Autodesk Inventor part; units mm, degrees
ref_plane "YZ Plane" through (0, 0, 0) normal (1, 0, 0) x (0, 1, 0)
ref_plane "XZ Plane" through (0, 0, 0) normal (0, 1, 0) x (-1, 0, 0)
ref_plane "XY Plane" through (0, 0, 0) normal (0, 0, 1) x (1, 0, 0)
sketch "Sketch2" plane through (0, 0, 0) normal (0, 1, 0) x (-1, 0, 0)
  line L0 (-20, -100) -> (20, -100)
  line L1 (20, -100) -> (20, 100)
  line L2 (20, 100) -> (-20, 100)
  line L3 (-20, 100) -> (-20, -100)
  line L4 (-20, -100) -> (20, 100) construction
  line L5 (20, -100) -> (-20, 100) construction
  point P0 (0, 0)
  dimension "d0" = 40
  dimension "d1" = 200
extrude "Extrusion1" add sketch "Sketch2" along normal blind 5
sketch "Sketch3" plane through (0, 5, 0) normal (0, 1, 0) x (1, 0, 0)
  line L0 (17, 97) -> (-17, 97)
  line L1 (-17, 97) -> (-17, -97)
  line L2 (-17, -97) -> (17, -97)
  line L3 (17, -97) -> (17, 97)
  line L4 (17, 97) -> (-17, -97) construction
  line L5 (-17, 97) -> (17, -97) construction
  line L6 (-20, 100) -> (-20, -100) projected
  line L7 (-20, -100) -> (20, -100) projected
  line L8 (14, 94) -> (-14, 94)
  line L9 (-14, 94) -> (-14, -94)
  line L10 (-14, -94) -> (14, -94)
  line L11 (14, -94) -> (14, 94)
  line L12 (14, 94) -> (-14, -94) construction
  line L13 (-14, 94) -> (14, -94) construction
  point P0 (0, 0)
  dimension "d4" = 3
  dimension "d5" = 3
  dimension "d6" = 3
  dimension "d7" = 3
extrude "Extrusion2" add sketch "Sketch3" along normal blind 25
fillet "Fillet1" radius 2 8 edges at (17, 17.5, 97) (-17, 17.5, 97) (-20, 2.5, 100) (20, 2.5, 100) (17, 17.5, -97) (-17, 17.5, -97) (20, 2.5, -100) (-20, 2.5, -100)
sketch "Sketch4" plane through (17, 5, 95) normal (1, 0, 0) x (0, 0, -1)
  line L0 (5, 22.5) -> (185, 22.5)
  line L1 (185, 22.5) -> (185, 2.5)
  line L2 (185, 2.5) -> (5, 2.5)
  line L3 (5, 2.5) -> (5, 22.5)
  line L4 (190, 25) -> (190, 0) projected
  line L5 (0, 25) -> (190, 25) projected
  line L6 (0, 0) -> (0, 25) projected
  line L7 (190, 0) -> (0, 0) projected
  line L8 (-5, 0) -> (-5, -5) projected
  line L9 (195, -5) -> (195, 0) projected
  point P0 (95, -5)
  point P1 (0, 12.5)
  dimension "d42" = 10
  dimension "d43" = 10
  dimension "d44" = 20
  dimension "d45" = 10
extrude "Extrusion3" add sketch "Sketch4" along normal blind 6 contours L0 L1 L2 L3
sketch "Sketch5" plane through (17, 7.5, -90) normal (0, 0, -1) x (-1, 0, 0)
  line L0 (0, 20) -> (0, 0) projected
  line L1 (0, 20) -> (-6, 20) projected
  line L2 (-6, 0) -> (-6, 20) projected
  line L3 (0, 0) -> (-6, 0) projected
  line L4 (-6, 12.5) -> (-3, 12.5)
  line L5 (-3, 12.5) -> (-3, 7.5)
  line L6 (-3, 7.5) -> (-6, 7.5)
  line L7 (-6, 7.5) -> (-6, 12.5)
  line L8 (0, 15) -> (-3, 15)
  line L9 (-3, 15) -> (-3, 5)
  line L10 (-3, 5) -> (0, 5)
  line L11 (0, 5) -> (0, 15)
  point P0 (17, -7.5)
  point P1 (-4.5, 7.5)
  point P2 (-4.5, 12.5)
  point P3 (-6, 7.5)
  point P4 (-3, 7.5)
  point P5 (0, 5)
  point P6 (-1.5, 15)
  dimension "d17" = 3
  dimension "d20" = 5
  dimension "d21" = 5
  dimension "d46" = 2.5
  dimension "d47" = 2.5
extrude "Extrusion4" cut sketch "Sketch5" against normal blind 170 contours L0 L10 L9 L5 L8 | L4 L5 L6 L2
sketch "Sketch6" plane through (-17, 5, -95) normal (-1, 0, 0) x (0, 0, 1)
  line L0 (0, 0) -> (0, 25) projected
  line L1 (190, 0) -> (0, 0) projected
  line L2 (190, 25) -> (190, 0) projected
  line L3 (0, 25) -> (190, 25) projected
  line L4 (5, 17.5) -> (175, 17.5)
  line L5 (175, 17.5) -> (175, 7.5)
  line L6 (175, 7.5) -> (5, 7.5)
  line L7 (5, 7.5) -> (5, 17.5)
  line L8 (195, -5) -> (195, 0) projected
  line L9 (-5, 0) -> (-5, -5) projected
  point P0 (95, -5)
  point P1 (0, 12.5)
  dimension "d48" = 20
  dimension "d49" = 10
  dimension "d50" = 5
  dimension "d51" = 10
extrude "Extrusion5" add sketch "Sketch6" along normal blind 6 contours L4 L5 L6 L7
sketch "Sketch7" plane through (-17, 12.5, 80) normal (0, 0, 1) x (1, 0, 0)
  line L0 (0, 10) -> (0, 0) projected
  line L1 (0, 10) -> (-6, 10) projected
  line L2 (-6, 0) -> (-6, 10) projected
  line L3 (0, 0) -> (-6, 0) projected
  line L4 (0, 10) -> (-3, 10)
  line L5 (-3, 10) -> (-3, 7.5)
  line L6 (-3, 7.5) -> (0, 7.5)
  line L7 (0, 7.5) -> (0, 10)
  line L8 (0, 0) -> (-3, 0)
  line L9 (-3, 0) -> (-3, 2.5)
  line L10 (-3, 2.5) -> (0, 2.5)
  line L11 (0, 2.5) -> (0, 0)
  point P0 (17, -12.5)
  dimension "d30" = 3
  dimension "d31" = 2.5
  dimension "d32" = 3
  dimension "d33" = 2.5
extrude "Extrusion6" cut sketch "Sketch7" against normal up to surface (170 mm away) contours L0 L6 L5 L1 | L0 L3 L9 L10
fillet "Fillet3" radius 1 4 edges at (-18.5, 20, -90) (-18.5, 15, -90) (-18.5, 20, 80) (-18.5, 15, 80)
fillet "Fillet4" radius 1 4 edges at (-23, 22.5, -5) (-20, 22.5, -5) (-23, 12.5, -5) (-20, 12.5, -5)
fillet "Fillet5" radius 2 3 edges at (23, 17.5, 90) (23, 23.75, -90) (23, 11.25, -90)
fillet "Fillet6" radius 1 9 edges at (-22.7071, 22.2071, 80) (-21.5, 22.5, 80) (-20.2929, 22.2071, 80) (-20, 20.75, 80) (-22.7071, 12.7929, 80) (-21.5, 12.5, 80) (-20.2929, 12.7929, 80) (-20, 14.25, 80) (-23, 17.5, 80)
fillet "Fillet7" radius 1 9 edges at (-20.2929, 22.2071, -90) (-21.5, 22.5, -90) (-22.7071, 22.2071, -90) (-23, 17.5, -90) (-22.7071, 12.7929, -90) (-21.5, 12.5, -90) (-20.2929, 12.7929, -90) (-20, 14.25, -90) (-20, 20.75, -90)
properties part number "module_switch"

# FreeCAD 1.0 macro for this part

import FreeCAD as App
import Part
import Sketcher

V = App.Vector


def edges_at(feature, points):
    """Names of the edges that pass closest to the given points."""
    edges = feature.Shape.Edges
    near = lambda p: min(range(len(edges)), key=lambda i: edges[i].distToShape(Part.Vertex(*p))[0])
    return sorted({f"Edge{near(p) + 1}" for p in points})


def add_polygon(sketch, points):
    """Adds a closed chain of lines whose ends are joined by coincident constraints."""
    first, n = sketch.GeometryCount, len(points)
    for a, b in zip(points, points[1:] + points[:1]):
        sketch.addGeometry(Part.LineSegment(App.Vector(*a, 0), App.Vector(*b, 0)), False)
    for i in range(n):
        sketch.addConstraint(Sketcher.Constraint("Coincident", first + i, 2, first + (i + 1) % n, 1))

doc = App.newDocument("Part")
body = doc.addObject("PartDesign::Body", "Body")

# Sketch on XZ plane
sketch1 = body.newObject("Sketcher::SketchObject", "Sketch")
sketch1.AttachmentSupport = (doc.getObject("XZ_Plane"), [""])
sketch1.MapMode = "FlatFace"
add_polygon(sketch1, [(20, 100), (20, -100), (-20, -100), (-20, 100)])  # lines 0-3
sketch1.addConstraint(Sketcher.Constraint("Vertical", 0))
sketch1.addConstraint(Sketcher.Constraint("Horizontal", 1))
sketch1.addConstraint(Sketcher.Constraint("Vertical", 2))
sketch1.addConstraint(Sketcher.Constraint("Horizontal", 3))
sketch1.addConstraint(Sketcher.Constraint("Symmetric", 0, 2, 2, 2, -1, 1))
sketch1.addConstraint(Sketcher.Constraint("DistanceX", 1, 2, 1, 1, 40.0))
sketch1.addConstraint(Sketcher.Constraint("DistanceY", 0, 2, 0, 1, 200.0))
pad1 = body.newObject("PartDesign::Pad", "Pad")
pad1.Profile = sketch1
pad1.Length = 5
pad1.Reversed = True

# Sketch on XZ plane
sketch2 = body.newObject("Sketcher::SketchObject", "Sketch001")
sketch2.AttachmentSupport = (doc.getObject("XZ_Plane"), [""])
sketch2.MapMode = "FlatFace"
sketch2.AttachmentOffset = App.Placement(V(0, 0, -5), App.Rotation())
add_polygon(sketch2, [(17, 97), (17, -97), (-17, -97), (-17, 97)])  # lines 0-3
add_polygon(sketch2, [(-14, -94), (14, -94), (14, 94), (-14, 94)])  # lines 4-7
sketch2.addConstraint(Sketcher.Constraint("Vertical", 0))
sketch2.addConstraint(Sketcher.Constraint("Horizontal", 1))
sketch2.addConstraint(Sketcher.Constraint("Vertical", 2))
sketch2.addConstraint(Sketcher.Constraint("Horizontal", 3))
sketch2.addConstraint(Sketcher.Constraint("Horizontal", 4))
sketch2.addConstraint(Sketcher.Constraint("Vertical", 5))
sketch2.addConstraint(Sketcher.Constraint("Horizontal", 6))
sketch2.addConstraint(Sketcher.Constraint("Vertical", 7))
sketch2.addConstraint(Sketcher.Constraint("Symmetric", 0, 2, 2, 2, -1, 1))
sketch2.addConstraint(Sketcher.Constraint("Symmetric", 4, 2, 6, 2, -1, 1))
sketch2.addConstraint(Sketcher.Constraint("DistanceX", 4, 2, 0, 2, 3.0))
sketch2.addConstraint(Sketcher.Constraint("DistanceY", 0, 2, 4, 2, 3.0))
sketch2.addConstraint(Sketcher.Constraint("DistanceX", 1, 2, 1, 1, 34.0))
sketch2.addConstraint(Sketcher.Constraint("DistanceY", 0, 2, 0, 1, 194.0))
pad2 = body.newObject("PartDesign::Pad", "Pad001")
pad2.Profile = sketch2
pad2.Length = 25
pad2.Reversed = True
doc.recompute()

fillet = body.newObject("PartDesign::Fillet", "Fillet")
fillet.Base = (pad2, edges_at(pad2, [
    (17, 17.5, 97),
    (-17, 17.5, 97),
    (-20, 2.5, 100),
    (20, 2.5, 100),
    (17, 17.5, -97),
    (-17, 17.5, -97),
    (20, 2.5, -100),
    (-20, 2.5, -100),
]))
fillet.Radius = 2

# Sketch on YZ plane
sketch3 = body.newObject("Sketcher::SketchObject", "Sketch002")
sketch3.AttachmentSupport = (doc.getObject("YZ_Plane"), [""])
sketch3.MapMode = "FlatFace"
sketch3.AttachmentOffset = App.Placement(V(0, 0, 17), App.Rotation())
add_polygon(sketch3, [(27.5, -90), (27.5, 90), (7.5, 90), (7.5, -90)])  # lines 0-3
sketch3.addConstraint(Sketcher.Constraint("Vertical", 0))
sketch3.addConstraint(Sketcher.Constraint("Horizontal", 1))
sketch3.addConstraint(Sketcher.Constraint("Vertical", 2))
sketch3.addConstraint(Sketcher.Constraint("Horizontal", 3))
sketch3.addConstraint(Sketcher.Constraint("DistanceX", 1, 2, 1, 1, 20.0))
sketch3.addConstraint(Sketcher.Constraint("DistanceY", 0, 1, 0, 2, 180.0))
sketch3.addConstraint(Sketcher.Constraint("DistanceY", -1, 1, 0, 2, 90.0))
sketch3.addConstraint(Sketcher.Constraint("DistanceX", -1, 1, 0, 2, 27.5))
pad3 = body.newObject("PartDesign::Pad", "Pad002")
pad3.Profile = sketch3
pad3.Length = 6

# Sketch on XY plane
sketch4 = body.newObject("Sketcher::SketchObject", "Sketch003")
sketch4.AttachmentSupport = (doc.getObject("XY_Plane"), [""])
sketch4.MapMode = "FlatFace"
sketch4.AttachmentOffset = App.Placement(V(0, 0, -90), App.Rotation())
add_polygon(sketch4, [(17, 12.5), (17, 22.5), (20, 22.5), (20, 20), (23, 20), (23, 15), (20, 15), (20, 12.5)])  # lines 0-7
sketch4.addConstraint(Sketcher.Constraint("Vertical", 0))
sketch4.addConstraint(Sketcher.Constraint("Horizontal", 1))
sketch4.addConstraint(Sketcher.Constraint("Vertical", 2))
sketch4.addConstraint(Sketcher.Constraint("Horizontal", 3))
sketch4.addConstraint(Sketcher.Constraint("Vertical", 4))
sketch4.addConstraint(Sketcher.Constraint("Horizontal", 5))
sketch4.addConstraint(Sketcher.Constraint("Vertical", 6))
sketch4.addConstraint(Sketcher.Constraint("Horizontal", 7))
sketch4.addConstraint(Sketcher.Constraint("Vertical", 2, 2, 5, 2))
sketch4.addConstraint(Sketcher.Constraint("Equal", 1, 3))
sketch4.addConstraint(Sketcher.Constraint("Equal", 2, 6))
sketch4.addConstraint(Sketcher.Constraint("DistanceX", 1, 1, 1, 2, 3.0))
sketch4.addConstraint(Sketcher.Constraint("DistanceY", 4, 2, 4, 1, 5.0))
sketch4.addConstraint(Sketcher.Constraint("DistanceY", 2, 2, 2, 1, 2.5))
sketch4.addConstraint(Sketcher.Constraint("DistanceX", -1, 1, 0, 2, 17.0))
sketch4.addConstraint(Sketcher.Constraint("DistanceY", -1, 1, 2, 2, 20.0))
pocket1 = body.newObject("PartDesign::Pocket", "Pocket")
pocket1.Profile = sketch4
pocket1.Length = 170
pocket1.Reversed = True

# Sketch on YZ plane
sketch5 = body.newObject("Sketcher::SketchObject", "Sketch004")
sketch5.AttachmentSupport = (doc.getObject("YZ_Plane"), [""])
sketch5.MapMode = "FlatFace"
sketch5.AttachmentOffset = App.Placement(V(0, 0, -17), App.Rotation())
add_polygon(sketch5, [(22.5, 80), (22.5, -90), (12.5, -90), (12.5, 80)])  # lines 0-3
sketch5.addConstraint(Sketcher.Constraint("Vertical", 0))
sketch5.addConstraint(Sketcher.Constraint("Horizontal", 1))
sketch5.addConstraint(Sketcher.Constraint("Vertical", 2))
sketch5.addConstraint(Sketcher.Constraint("Horizontal", 3))
sketch5.addConstraint(Sketcher.Constraint("DistanceX", 1, 2, 1, 1, 10.0))
sketch5.addConstraint(Sketcher.Constraint("DistanceY", 0, 2, 0, 1, 170.0))
sketch5.addConstraint(Sketcher.Constraint("DistanceY", 0, 2, -1, 1, 90.0))
sketch5.addConstraint(Sketcher.Constraint("DistanceX", -1, 1, 0, 2, 22.5))
pad4 = body.newObject("PartDesign::Pad", "Pad003")
pad4.Profile = sketch5
pad4.Length = 6
pad4.Reversed = True

# Sketch on XY plane
sketch6 = body.newObject("Sketcher::SketchObject", "Sketch005")
sketch6.AttachmentSupport = (doc.getObject("XY_Plane"), [""])
sketch6.MapMode = "FlatFace"
sketch6.AttachmentOffset = App.Placement(V(0, 0, 80), App.Rotation())
add_polygon(sketch6, [(-17, 20), (-17, 22.5), (-20, 22.5), (-20, 20)])  # lines 0-3
add_polygon(sketch6, [(-17, 12.5), (-17, 15), (-20, 15), (-20, 12.5)])  # lines 4-7
sketch6.addConstraint(Sketcher.Constraint("Vertical", 0))
sketch6.addConstraint(Sketcher.Constraint("Horizontal", 1))
sketch6.addConstraint(Sketcher.Constraint("Vertical", 2))
sketch6.addConstraint(Sketcher.Constraint("Horizontal", 3))
sketch6.addConstraint(Sketcher.Constraint("Vertical", 4))
sketch6.addConstraint(Sketcher.Constraint("Horizontal", 5))
sketch6.addConstraint(Sketcher.Constraint("Vertical", 6))
sketch6.addConstraint(Sketcher.Constraint("Horizontal", 7))
sketch6.addConstraint(Sketcher.Constraint("Vertical", 3, 2, 4, 2))
sketch6.addConstraint(Sketcher.Constraint("Vertical", 2, 2, 5, 2))
sketch6.addConstraint(Sketcher.Constraint("Equal", 2, 4))
sketch6.addConstraint(Sketcher.Constraint("DistanceX", 1, 2, 1, 1, 3.0))
sketch6.addConstraint(Sketcher.Constraint("DistanceY", 0, 1, 0, 2, 2.5))
sketch6.addConstraint(Sketcher.Constraint("DistanceX", 0, 2, -1, 1, 17.0))
sketch6.addConstraint(Sketcher.Constraint("DistanceY", -1, 1, 2, 2, 20.0))
sketch6.addConstraint(Sketcher.Constraint("DistanceY", -1, 1, 4, 2, 15.0))
pocket2 = body.newObject("PartDesign::Pocket", "Pocket001")
pocket2.Profile = sketch6
pocket2.Length = 170
doc.recompute()

fillet2 = body.newObject("PartDesign::Fillet", "Fillet001")
fillet2.Base = (pocket2, edges_at(pocket2, [
    (-18.5, 20, -90),
    (-18.5, 15, -90),
    (-18.5, 20, 80),
    (-18.5, 15, 80),
]))
fillet2.Radius = 1
doc.recompute()

fillet3 = body.newObject("PartDesign::Fillet", "Fillet002")
fillet3.Base = (fillet2, edges_at(fillet2, [
    (-23, 22.5, -5),
    (-20, 22.5, -5),
    (-23, 12.5, -5),
    (-20, 12.5, -5),
]))
fillet3.Radius = 1
doc.recompute()

fillet4 = body.newObject("PartDesign::Fillet", "Fillet003")
fillet4.Base = (fillet3, edges_at(fillet3, [(23, 17.5, 90), (23, 23.75, -90), (23, 11.25, -90)]))
fillet4.Radius = 2
doc.recompute()

fillet5 = body.newObject("PartDesign::Fillet", "Fillet004")
fillet5.Base = (fillet4, edges_at(fillet4, [
    (-22.707, 22.207, 80),
    (-21.5, 22.5, 80),
    (-20.293, 22.207, 80),
    (-20, 20.75, 80),
    (-22.707, 12.793, 80),
    (-21.5, 12.5, 80),
    (-20.293, 12.793, 80),
    (-20, 14.25, 80),
    (-23, 17.5, 80),
]))
fillet5.Radius = 1
doc.recompute()

fillet6 = body.newObject("PartDesign::Fillet", "Fillet005")
fillet6.Base = (fillet5, edges_at(fillet5, [
    (-20.293, 22.207, -90),
    (-21.5, 22.5, -90),
    (-22.707, 22.207, -90),
    (-23, 17.5, -90),
    (-22.707, 12.793, -90),
    (-21.5, 12.5, -90),
    (-20.293, 12.793, -90),
    (-20, 14.25, -90),
    (-20, 20.75, -90),
]))
fillet6.Radius = 1

doc.recompute()
